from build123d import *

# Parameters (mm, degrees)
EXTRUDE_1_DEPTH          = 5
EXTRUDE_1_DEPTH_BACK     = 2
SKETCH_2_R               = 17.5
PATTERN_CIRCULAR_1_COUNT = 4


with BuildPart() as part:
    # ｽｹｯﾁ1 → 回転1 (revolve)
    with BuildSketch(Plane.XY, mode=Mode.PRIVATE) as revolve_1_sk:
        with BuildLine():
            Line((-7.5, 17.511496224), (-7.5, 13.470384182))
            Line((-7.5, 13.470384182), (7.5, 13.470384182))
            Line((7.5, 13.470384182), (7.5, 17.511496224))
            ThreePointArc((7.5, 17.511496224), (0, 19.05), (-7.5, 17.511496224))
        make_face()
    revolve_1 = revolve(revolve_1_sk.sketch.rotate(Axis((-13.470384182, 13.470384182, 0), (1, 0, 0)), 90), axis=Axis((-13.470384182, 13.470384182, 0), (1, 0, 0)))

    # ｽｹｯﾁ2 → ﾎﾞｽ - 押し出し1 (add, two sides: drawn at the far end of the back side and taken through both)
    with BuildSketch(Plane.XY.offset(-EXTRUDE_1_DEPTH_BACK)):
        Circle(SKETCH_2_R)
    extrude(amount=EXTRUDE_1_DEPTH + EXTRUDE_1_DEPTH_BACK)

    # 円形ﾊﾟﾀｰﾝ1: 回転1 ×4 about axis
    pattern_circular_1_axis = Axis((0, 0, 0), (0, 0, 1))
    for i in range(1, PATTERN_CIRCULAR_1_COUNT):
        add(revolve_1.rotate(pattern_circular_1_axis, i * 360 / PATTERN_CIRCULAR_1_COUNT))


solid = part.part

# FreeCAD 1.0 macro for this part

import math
import FreeCAD as App
import Part
import Sketcher
from FreeCAD import Vector

doc = App.newDocument("Part")
body = doc.addObject("PartDesign::Body", "Body")

# Sketch on XY plane
sketch1 = doc.addObject("Sketcher::SketchObject", "Sketch")
body.addObject(sketch1)
sketch1.AttachmentSupport = (doc.XY_Plane, [""])
sketch1.MapMode = "FlatFace"
sketch1.addGeometry([
    Part.LineSegment(Vector(-7.5, 17.511496, 0), Vector(-7.5, 13.470384, 0)),
    Part.LineSegment(Vector(-7.5, 13.470384, 0), Vector(7.5, 13.470384, 0)),
    Part.LineSegment(Vector(7.5, 13.470384, 0), Vector(7.5, 17.511496, 0)),
    Part.ArcOfCircle(Part.Circle(Vector(0, 0, 0), Vector(0, 0, 1), 19.05), math.radians(66.81503), math.radians(113.18497)),
], False)
sketch1.addGeometry(Part.LineSegment(Vector(-7.5, 13.470384, 0), Vector(7.5, 13.470384, 0)), True)  # axis
sketch1.addConstraint([
    Sketcher.Constraint("Coincident", 0, 2, 1, 1),
    Sketcher.Constraint("Coincident", 1, 2, 2, 1),
    Sketcher.Constraint("Coincident", 2, 2, 3, 1),
    Sketcher.Constraint("Coincident", 3, 2, 0, 1),
    Sketcher.Constraint("Vertical", 0),
    Sketcher.Constraint("Horizontal", 1),
    Sketcher.Constraint("Vertical", 2),
    Sketcher.Constraint("Horizontal", 4),
    Sketcher.Constraint("Coincident", 3, 3, -1, 1),
    Sketcher.Constraint("Coincident", 4, 1, 0, 2),
    Sketcher.Constraint("Horizontal", 2, 2, 3, 2),
    Sketcher.Constraint("Vertical", 2, 2, 4, 2),
    Sketcher.Constraint("DistanceX", 1, 1, 1, 2, 15.0),
    Sketcher.Constraint("Radius", 3, 19.05),
    Sketcher.Constraint("DistanceY", 0, 2, 0, 1, 4.041112),
])
revolution = doc.addObject("PartDesign::Revolution", "Revolution")
body.addObject(revolution)
revolution.Profile = sketch1
revolution.ReferenceAxis = (sketch1, ["Axis0"])
revolution.Angle = 360

# Sketch on XY plane
sketch2 = doc.addObject("Sketcher::SketchObject", "Sketch001")
body.addObject(sketch2)
sketch2.AttachmentSupport = (doc.XY_Plane, [""])
sketch2.MapMode = "FlatFace"
sketch2.addGeometry(Part.Circle(Vector(0, 0, 0), Vector(0, 0, 1), 17.5), False)
sketch2.addConstraint([
    Sketcher.Constraint("Coincident", 0, 3, -1, 1),
    Sketcher.Constraint("Diameter", 0, 35.0),
])
pad1 = doc.addObject("PartDesign::Pad", "Pad")
body.addObject(pad1)
pad1.Profile = sketch2
pad1.Type = "TwoLengths"
pad1.Length = 5
pad1.Length2 = 2
doc.recompute()

polarpattern = doc.addObject("PartDesign::PolarPattern", "PolarPattern")
body.addObject(polarpattern)
polarpattern.Originals = [revolution]
polarpattern.Axis = (doc.Z_Axis, [""])
polarpattern.Angle = 360
polarpattern.Occurrences = 4
body.Tip = polarpattern

doc.recompute()
